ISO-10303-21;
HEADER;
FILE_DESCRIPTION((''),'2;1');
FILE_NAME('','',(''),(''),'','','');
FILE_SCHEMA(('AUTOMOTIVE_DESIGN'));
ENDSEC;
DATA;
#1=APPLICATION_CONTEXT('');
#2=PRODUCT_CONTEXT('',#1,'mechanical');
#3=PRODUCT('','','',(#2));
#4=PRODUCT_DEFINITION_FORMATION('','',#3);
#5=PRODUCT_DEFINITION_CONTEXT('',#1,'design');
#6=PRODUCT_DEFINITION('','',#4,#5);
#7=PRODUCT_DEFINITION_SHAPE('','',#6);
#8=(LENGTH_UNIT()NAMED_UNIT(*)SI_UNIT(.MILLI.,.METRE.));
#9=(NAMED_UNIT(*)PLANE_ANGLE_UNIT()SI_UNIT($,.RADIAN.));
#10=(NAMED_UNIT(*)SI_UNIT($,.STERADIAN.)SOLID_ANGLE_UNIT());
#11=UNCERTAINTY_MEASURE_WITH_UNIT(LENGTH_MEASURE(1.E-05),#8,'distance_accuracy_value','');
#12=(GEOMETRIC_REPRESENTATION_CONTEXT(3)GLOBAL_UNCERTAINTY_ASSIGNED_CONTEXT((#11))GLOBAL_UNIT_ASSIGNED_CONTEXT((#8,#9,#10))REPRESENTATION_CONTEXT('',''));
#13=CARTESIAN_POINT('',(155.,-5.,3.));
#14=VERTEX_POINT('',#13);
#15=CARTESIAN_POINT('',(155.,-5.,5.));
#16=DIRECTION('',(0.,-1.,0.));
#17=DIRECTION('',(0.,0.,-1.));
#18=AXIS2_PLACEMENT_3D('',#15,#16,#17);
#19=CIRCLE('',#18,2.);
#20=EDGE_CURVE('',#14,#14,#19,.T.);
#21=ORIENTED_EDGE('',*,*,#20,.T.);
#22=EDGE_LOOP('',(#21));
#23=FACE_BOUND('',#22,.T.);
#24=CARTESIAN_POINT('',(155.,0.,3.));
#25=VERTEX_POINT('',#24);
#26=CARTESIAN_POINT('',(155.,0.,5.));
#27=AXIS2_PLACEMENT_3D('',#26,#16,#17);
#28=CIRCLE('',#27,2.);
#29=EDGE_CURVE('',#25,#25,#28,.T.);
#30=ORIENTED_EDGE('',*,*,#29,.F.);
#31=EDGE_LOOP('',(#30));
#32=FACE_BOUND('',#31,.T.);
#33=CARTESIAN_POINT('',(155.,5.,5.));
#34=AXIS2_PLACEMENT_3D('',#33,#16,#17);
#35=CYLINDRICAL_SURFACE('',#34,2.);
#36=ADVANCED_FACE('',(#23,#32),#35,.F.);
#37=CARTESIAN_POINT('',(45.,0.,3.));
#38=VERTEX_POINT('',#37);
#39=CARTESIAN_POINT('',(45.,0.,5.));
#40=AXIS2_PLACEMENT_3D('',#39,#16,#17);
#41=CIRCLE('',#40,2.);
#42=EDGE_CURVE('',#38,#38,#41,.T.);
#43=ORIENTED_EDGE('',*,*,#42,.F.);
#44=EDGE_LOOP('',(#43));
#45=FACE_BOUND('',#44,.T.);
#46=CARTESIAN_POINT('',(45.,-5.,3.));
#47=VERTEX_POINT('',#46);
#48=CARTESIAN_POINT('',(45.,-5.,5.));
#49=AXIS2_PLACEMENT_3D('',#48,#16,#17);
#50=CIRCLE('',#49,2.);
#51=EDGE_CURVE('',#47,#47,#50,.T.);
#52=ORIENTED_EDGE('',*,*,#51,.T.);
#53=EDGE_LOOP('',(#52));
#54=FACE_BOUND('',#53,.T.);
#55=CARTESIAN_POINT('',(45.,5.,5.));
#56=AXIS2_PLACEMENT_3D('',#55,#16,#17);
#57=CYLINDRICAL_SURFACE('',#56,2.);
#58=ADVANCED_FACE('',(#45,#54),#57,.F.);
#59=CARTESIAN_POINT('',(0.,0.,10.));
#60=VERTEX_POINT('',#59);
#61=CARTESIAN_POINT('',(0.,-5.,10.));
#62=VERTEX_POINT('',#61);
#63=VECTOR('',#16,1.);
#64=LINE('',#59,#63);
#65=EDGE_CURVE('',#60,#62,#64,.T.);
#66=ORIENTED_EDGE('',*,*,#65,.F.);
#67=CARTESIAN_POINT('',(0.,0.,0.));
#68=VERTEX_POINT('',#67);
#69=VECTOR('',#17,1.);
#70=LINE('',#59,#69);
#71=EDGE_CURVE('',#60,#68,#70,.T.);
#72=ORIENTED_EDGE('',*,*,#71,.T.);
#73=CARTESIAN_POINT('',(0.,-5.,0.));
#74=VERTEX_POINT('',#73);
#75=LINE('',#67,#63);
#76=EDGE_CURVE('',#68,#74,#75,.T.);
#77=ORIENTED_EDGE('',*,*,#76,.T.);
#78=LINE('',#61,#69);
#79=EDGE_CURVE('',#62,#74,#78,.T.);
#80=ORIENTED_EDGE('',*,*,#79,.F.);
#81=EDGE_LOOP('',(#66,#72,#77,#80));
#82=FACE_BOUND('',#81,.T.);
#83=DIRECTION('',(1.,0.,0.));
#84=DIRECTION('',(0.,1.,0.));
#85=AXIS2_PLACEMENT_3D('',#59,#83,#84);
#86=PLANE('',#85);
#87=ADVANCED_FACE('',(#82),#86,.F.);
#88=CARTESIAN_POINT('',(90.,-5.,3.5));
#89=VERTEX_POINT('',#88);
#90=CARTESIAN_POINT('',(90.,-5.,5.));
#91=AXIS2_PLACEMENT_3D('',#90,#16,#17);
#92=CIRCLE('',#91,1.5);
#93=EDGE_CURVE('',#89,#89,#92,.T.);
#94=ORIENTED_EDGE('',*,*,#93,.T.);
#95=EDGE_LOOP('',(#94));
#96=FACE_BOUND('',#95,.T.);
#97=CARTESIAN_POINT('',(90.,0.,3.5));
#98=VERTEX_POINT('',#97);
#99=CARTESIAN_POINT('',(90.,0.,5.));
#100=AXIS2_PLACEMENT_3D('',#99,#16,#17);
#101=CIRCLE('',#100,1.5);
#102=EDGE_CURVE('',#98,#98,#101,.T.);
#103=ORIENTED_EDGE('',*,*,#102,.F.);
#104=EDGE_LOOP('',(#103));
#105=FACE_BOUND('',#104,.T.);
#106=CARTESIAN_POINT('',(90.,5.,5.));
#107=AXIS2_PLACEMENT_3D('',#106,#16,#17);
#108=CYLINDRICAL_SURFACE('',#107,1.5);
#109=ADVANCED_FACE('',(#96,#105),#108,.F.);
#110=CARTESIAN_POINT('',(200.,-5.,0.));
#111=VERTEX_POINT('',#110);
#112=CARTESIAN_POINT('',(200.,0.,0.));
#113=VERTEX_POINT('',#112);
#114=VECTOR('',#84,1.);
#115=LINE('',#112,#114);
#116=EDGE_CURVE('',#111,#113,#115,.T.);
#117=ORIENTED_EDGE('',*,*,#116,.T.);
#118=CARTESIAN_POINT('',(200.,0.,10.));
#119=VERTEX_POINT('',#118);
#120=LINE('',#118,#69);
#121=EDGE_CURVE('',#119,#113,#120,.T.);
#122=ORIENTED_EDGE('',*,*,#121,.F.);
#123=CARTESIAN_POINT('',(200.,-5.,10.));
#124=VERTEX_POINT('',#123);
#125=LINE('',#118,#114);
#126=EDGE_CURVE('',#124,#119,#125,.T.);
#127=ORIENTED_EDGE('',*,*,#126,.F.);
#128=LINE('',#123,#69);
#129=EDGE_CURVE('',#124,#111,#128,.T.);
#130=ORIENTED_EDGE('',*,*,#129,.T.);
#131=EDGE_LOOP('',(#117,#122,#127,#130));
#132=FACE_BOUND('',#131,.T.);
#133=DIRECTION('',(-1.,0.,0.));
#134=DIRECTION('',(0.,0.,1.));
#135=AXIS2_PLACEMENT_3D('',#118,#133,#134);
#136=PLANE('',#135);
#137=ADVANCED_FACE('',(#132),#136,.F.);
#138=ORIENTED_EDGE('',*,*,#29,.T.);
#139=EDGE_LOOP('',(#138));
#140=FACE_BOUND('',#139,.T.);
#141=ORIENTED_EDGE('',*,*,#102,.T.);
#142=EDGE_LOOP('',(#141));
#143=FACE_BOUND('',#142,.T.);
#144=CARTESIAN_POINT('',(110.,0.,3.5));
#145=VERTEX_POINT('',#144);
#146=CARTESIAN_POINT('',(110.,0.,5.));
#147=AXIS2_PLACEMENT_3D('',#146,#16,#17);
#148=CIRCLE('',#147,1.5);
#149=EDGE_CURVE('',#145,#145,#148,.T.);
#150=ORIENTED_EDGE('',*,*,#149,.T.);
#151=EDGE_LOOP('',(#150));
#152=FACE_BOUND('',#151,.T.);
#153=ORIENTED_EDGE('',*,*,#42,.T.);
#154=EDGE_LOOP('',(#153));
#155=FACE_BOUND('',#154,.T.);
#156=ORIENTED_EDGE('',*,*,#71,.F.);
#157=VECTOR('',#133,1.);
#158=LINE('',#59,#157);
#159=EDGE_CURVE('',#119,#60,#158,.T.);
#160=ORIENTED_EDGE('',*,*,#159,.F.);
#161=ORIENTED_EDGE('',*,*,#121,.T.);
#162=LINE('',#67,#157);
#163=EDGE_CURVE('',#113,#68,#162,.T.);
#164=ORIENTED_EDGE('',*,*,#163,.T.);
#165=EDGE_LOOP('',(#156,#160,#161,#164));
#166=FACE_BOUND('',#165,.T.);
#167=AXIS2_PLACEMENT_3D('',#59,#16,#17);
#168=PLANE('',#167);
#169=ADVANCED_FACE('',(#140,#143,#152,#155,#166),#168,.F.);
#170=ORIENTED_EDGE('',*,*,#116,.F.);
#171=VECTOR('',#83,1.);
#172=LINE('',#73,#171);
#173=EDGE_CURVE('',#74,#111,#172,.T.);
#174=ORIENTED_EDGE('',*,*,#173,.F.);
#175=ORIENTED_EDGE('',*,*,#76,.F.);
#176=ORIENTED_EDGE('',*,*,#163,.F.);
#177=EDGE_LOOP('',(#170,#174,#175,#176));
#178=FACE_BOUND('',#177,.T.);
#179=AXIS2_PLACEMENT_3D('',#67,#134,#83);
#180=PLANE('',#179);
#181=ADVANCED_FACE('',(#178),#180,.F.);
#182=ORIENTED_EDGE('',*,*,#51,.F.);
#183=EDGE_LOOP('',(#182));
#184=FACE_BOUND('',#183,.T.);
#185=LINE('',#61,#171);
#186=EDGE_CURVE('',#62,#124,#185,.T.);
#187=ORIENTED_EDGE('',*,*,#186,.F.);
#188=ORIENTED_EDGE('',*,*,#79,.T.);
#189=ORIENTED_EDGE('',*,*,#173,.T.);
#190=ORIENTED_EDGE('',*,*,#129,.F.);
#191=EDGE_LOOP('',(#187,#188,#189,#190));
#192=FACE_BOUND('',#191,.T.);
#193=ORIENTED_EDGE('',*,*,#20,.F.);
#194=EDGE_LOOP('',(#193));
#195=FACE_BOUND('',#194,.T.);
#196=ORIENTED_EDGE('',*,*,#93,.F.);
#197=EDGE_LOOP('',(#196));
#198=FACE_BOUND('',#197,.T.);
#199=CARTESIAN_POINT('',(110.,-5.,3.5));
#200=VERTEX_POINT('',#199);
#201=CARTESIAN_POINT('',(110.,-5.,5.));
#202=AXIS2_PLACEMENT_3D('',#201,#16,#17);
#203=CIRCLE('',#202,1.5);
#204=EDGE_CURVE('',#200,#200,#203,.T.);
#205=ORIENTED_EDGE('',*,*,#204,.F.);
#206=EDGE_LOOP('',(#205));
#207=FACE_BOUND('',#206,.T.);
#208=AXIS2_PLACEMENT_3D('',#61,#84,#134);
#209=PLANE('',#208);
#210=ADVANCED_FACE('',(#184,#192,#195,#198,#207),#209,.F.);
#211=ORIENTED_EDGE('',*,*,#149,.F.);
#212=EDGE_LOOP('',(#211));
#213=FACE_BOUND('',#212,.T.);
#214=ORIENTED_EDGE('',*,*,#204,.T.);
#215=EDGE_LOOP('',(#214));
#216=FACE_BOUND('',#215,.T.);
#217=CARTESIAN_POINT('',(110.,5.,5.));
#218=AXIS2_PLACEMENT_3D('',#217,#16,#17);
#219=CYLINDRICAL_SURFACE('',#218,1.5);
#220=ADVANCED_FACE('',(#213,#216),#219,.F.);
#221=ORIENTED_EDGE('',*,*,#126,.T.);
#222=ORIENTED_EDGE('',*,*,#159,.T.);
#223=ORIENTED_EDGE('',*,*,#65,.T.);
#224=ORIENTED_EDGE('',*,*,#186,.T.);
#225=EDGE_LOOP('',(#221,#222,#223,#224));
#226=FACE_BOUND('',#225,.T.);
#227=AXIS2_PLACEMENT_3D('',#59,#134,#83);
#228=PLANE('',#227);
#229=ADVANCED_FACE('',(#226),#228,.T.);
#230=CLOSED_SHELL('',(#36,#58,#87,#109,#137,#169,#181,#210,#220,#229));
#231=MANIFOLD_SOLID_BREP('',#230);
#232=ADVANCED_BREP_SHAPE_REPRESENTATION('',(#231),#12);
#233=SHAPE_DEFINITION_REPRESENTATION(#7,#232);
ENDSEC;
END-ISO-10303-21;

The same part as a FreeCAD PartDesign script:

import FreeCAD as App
import Part
import Sketcher
Q = App.Units.Quantity

doc = App.newDocument("Part")
body = doc.addObject("PartDesign::Body", "Body")

sketch1 = body.newObject("Sketcher::SketchObject", "Sketch")
sketch1.AttachmentSupport = (doc.getObject("XY_Plane"), [""])
sketch1.MapMode = "FlatFace"
sketch1.addGeometry([
    Part.LineSegment(App.Vector(0, 0, 0), App.Vector(0, -5, 0)),
    Part.LineSegment(App.Vector(0, -5, 0), App.Vector(200, -5, 0)),
    Part.LineSegment(App.Vector(200, -5, 0), App.Vector(200, 0, 0)),
    Part.LineSegment(App.Vector(200, 0, 0), App.Vector(0, 0, 0)),
], False)
sketch1.addConstraint([
    Sketcher.Constraint("Coincident", 0, 2, 1, 1),
    Sketcher.Constraint("Coincident", 1, 2, 2, 1),
    Sketcher.Constraint("Coincident", 2, 2, 3, 1),
    Sketcher.Constraint("Coincident", 3, 2, 0, 1),
    Sketcher.Constraint("Vertical", 0),
    Sketcher.Constraint("Horizontal", 1),
    Sketcher.Constraint("Vertical", 2),
    Sketcher.Constraint("Horizontal", 3),
    Sketcher.Constraint("Coincident", 3, 2, -1, 1),
    Sketcher.Constraint("DistanceX", 1, 1, 1, 2, Q("200 mm")),
    Sketcher.Constraint("DistanceY", 0, 2, 0, 1, Q("5 mm")),
])
pad1 = body.newObject("PartDesign::Pad", "Pad")
pad1.Profile = sketch1
pad1.Length = 10

sketch2 = body.newObject("Sketcher::SketchObject", "Sketch001")
sketch2.AttachmentSupport = (doc.getObject("XZ_Plane"), [""])
sketch2.MapMode = "FlatFace"
sketch2.AttachmentOffset = App.Placement(App.Vector(0, 0, 5), App.Rotation())
sketch2.addGeometry(Part.Circle(App.Vector(45, 5, 0), App.Vector(0, 0, 1), 2), False)
sketch2.addConstraint([
    Sketcher.Constraint("Diameter", 0, Q("4 mm")),
    Sketcher.Constraint("DistanceX", -1, 1, 0, 3, Q("45 mm")),
    Sketcher.Constraint("DistanceY", -1, 1, 0, 3, Q("5 mm")),
])
pocket1 = body.newObject("PartDesign::Pocket", "Pocket")
pocket1.Profile = sketch2
pocket1.Length = 10

sketch3 = body.newObject("Sketcher::SketchObject", "Sketch002")
sketch3.AttachmentSupport = (doc.getObject("XZ_Plane"), [""])
sketch3.MapMode = "FlatFace"
sketch3.AttachmentOffset = App.Placement(App.Vector(0, 0, 5), App.Rotation())
sketch3.addGeometry([
    Part.Circle(App.Vector(45, 5, 0), App.Vector(0, 0, 1), 2),
    Part.Circle(App.Vector(155, 5, 0), App.Vector(0, 0, 1), 2),
    Part.Circle(App.Vector(110, 5, 0), App.Vector(0, 0, 1), 1.5),
    Part.Circle(App.Vector(90, 5, 0), App.Vector(0, 0, 1), 1.5),
], False)
sketch3.addConstraint([
    Sketcher.Constraint("Equal", 0, 1),
    Sketcher.Constraint("Equal", 2, 3),
    Sketcher.Constraint("Horizontal", 0, 3, 1, 3),
    Sketcher.Constraint("Horizontal", 1, 3, 2, 3),
    Sketcher.Constraint("Horizontal", 2, 3, 3, 3),
    Sketcher.Constraint("Diameter", 0, Q("4 mm")),
    Sketcher.Constraint("Diameter", 2, Q("3 mm")),
    Sketcher.Constraint("DistanceX", -1, 1, 0, 3, Q("45 mm")),
    Sketcher.Constraint("DistanceY", -1, 1, 0, 3, Q("5 mm")),
    Sketcher.Constraint("DistanceX", -1, 1, 1, 3, Q("155 mm")),
    Sketcher.Constraint("DistanceX", -1, 1, 2, 3, Q("110 mm")),
    Sketcher.Constraint("DistanceX", -1, 1, 3, 3, Q("90 mm")),
])
pocket2 = body.newObject("PartDesign::Pocket", "Pocket001")
pocket2.Profile = sketch3
pocket2.Length = 10

doc.recompute()
